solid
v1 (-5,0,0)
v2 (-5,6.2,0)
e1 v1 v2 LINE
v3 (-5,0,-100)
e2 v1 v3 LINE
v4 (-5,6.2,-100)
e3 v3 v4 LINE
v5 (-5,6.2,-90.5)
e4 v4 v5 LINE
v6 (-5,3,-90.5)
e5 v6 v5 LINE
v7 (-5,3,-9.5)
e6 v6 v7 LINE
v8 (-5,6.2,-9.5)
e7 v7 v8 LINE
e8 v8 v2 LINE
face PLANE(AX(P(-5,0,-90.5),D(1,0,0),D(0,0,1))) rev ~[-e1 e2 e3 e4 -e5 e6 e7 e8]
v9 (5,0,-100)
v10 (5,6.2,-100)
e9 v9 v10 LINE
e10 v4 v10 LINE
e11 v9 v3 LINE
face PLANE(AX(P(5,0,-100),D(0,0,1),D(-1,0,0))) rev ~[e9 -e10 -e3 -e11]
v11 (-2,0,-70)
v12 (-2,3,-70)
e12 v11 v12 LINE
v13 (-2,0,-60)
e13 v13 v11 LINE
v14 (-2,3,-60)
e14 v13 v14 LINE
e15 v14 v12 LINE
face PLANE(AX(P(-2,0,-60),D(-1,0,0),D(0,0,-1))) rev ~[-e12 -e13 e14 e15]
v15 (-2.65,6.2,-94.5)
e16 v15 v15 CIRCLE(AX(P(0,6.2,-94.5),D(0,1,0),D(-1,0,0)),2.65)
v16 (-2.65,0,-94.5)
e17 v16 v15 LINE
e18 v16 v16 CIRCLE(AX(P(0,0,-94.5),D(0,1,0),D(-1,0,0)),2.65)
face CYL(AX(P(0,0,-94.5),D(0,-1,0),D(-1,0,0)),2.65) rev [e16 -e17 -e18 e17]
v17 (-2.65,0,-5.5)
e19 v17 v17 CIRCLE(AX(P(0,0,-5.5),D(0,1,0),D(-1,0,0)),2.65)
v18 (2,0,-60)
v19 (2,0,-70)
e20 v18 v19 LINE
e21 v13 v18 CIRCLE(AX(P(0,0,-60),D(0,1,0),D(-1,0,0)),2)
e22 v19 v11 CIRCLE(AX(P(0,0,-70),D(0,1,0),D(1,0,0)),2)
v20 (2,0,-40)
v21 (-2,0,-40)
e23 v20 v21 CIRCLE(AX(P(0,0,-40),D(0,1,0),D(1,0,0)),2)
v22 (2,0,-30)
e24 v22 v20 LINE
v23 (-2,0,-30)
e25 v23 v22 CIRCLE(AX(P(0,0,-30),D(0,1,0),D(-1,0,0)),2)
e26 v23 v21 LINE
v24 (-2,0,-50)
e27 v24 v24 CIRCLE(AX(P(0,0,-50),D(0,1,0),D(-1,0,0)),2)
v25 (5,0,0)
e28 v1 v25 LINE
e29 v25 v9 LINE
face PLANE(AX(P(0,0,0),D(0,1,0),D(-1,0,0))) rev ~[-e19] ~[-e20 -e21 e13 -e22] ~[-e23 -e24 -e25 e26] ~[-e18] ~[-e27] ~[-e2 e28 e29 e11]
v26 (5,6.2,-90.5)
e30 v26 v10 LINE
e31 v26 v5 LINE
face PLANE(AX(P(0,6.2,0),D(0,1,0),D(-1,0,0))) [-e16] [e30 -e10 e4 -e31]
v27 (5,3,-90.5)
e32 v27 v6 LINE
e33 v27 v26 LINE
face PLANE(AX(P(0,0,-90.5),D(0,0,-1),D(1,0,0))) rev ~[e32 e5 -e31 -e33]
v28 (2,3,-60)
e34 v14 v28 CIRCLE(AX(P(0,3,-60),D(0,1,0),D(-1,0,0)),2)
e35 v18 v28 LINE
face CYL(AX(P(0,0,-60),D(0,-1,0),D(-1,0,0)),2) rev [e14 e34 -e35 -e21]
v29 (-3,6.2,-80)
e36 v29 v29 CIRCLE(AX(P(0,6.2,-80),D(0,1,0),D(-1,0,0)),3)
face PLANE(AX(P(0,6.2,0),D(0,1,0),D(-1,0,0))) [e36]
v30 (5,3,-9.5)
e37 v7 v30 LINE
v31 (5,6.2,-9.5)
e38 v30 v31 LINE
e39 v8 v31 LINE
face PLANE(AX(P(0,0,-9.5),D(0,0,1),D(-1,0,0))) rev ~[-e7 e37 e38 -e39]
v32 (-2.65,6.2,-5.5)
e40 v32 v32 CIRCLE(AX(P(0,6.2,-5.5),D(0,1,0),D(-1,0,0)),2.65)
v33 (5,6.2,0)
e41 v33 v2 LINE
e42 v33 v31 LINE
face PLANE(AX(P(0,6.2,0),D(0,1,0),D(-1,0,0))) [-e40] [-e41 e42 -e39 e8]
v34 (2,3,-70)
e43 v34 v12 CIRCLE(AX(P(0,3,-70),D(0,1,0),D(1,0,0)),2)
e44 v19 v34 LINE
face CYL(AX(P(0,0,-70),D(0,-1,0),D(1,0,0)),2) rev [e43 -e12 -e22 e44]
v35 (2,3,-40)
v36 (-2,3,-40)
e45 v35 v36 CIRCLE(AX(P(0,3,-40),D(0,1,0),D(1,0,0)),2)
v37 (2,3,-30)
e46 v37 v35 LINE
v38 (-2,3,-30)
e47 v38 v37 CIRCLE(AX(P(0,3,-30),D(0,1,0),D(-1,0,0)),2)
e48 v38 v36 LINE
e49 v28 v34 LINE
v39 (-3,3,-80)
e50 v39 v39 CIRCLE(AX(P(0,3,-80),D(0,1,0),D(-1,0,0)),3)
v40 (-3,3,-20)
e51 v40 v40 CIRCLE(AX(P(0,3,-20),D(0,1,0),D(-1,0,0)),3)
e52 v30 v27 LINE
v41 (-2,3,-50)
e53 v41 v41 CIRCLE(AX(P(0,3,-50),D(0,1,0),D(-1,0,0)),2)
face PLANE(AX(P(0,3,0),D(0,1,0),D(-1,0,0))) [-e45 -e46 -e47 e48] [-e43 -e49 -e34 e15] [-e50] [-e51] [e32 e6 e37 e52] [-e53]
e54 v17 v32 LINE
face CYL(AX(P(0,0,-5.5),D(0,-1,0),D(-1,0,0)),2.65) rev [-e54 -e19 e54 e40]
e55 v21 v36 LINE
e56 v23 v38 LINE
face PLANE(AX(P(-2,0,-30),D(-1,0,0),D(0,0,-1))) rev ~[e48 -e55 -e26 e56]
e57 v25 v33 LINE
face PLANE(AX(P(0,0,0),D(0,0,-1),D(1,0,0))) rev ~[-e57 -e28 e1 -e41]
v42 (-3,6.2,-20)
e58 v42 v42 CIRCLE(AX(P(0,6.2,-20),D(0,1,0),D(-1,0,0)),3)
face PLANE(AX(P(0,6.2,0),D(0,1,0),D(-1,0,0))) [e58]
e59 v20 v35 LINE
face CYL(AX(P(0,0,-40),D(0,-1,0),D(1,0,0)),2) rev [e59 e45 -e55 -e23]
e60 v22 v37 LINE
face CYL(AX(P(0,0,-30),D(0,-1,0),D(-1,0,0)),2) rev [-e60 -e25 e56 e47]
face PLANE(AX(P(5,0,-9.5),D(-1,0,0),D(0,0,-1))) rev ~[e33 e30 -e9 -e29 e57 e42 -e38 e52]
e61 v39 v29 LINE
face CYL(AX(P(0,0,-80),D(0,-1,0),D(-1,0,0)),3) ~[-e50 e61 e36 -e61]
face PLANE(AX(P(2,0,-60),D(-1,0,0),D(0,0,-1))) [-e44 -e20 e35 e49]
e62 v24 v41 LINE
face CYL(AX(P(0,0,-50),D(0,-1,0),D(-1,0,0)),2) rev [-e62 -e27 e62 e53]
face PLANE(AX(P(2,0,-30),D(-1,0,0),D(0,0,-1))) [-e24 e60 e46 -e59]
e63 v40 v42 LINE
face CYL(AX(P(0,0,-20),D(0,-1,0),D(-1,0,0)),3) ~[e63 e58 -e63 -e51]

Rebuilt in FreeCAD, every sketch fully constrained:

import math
import FreeCAD as App
import Part
import Sketcher
from FreeCAD import Vector

doc = App.newDocument("Part")
body = doc.addObject("PartDesign::Body", "Body")

# Sketch on XZ plane
sketch1 = body.newObject("Sketcher::SketchObject", "Sketch")
sketch1.AttachmentSupport = (doc.getObject("XZ_Plane"), [""])
sketch1.MapMode = "FlatFace"
sketch1.addGeometry([
    Part.LineSegment(Vector(5, -90.5, 0), Vector(-5, -90.5, 0)),  # 0
    Part.LineSegment(Vector(-5, -90.5, 0), Vector(-5, -9.5, 0)),  # 1
    Part.LineSegment(Vector(-5, -9.5, 0), Vector(5, -9.5, 0)),  # 2
    Part.LineSegment(Vector(5, -9.5, 0), Vector(5, -90.5, 0)),  # 3
    Part.Circle(Vector(0, -80, 0), Vector(0, 0, 1), 3),  # 4
    Part.ArcOfCircle(Part.Circle(Vector(0, -60, 0), Vector(0, 0, 1), 2), math.radians(0), math.radians(180)),  # 5
    Part.LineSegment(Vector(-2, -60, 0), Vector(-2, -70, 0)),  # 6
    Part.ArcOfCircle(Part.Circle(Vector(0, -70, 0), Vector(0, 0, 1), 2), math.radians(180), math.radians(360)),  # 7
    Part.LineSegment(Vector(2, -70, 0), Vector(2, -60, 0)),  # 8
    Part.Circle(Vector(0, -50, 0), Vector(0, 0, 1), 2),  # 9
    Part.ArcOfCircle(Part.Circle(Vector(0, -30, 0), Vector(0, 0, 1), 2), math.radians(0), math.radians(180)),  # 10
    Part.LineSegment(Vector(-2, -30, 0), Vector(-2, -40, 0)),  # 11
    Part.ArcOfCircle(Part.Circle(Vector(0, -40, 0), Vector(0, 0, 1), 2), math.radians(180), math.radians(360)),  # 12
    Part.LineSegment(Vector(2, -40, 0), Vector(2, -30, 0)),  # 13
    Part.Circle(Vector(0, -20, 0), Vector(0, 0, 1), 3),  # 14
], False)
sketch1.addConstraint([
    Sketcher.Constraint("Coincident", 0, 2, 1, 1),
    Sketcher.Constraint("Coincident", 1, 2, 2, 1),
    Sketcher.Constraint("Coincident", 2, 2, 3, 1),
    Sketcher.Constraint("Coincident", 3, 2, 0, 1),
    Sketcher.Constraint("Tangent", 5, 2, 6, 1),
    Sketcher.Constraint("Tangent", 6, 2, 7, 1),
    Sketcher.Constraint("Tangent", 7, 2, 8, 1),
    Sketcher.Constraint("Tangent", 8, 2, 5, 1),
    Sketcher.Constraint("Tangent", 10, 2, 11, 1),
    Sketcher.Constraint("Tangent", 11, 2, 12, 1),
    Sketcher.Constraint("Tangent", 12, 2, 13, 1),
    Sketcher.Constraint("Tangent", 13, 2, 10, 1),
    Sketcher.Constraint("Horizontal", 0),
    Sketcher.Constraint("Vertical", 1),
    Sketcher.Constraint("Horizontal", 2),
    Sketcher.Constraint("Vertical", 3),
    Sketcher.Constraint("Vertical", 6),
    Sketcher.Constraint("Vertical", 8),
    Sketcher.Constraint("Vertical", 11),
    Sketcher.Constraint("Vertical", 13),
    Sketcher.Constraint("Equal", 7, 9),
    Sketcher.Constraint("Equal", 9, 10),
    Sketcher.Constraint("Equal", 4, 14),
    Sketcher.Constraint("PointOnObject", 4, 3, -2),
    Sketcher.Constraint("PointOnObject", 5, 3, -2),
    Sketcher.Constraint("PointOnObject", 9, 3, -2),
    Sketcher.Constraint("PointOnObject", 10, 3, -2),
    Sketcher.Constraint("PointOnObject", 14, 3, -2),
    Sketcher.Constraint("Equal", 2, 6),
    Sketcher.Constraint("Equal", 8, 11),
    Sketcher.Constraint("Diameter", 4, 6.0),
    Sketcher.Constraint("Diameter", 9, 4.0),
    Sketcher.Constraint("DistanceX", 0, 2, -1, 1, 5.0),
    Sketcher.Constraint("DistanceX", -1, 1, 2, 2, 5.0),
    Sketcher.Constraint("DistanceY", 1, 1, 1, 2, 81.0),
    Sketcher.Constraint("DistanceY", 4, 3, -1, 1, 80.0),
    Sketcher.Constraint("DistanceY", 5, 3, -1, 1, 60.0),
    Sketcher.Constraint("DistanceY", 9, 3, -1, 1, 50.0),
    Sketcher.Constraint("DistanceY", 10, 3, -1, 1, 30.0),
    Sketcher.Constraint("DistanceY", 14, 3, -1, 1, 20.0),
    Sketcher.Constraint("DistanceY", 0, 2, -1, 1, 90.5),
])
pad1 = body.newObject("PartDesign::Pad", "Pad")
pad1.Profile = sketch1
pad1.Length = 3
pad1.Reversed = True

# Sketch on XZ plane
sketch2 = body.newObject("Sketcher::SketchObject", "Sketch001")
sketch2.AttachmentSupport = (doc.getObject("XZ_Plane"), [""])
sketch2.MapMode = "FlatFace"
sketch2.addGeometry([
    Part.Circle(Vector(0, -20, 0), Vector(0, 0, 1), 3),  # 0
    Part.Circle(Vector(0, -80, 0), Vector(0, 0, 1), 3),  # 1
    Part.LineSegment(Vector(5, -100, 0), Vector(-5, -100, 0)),  # 2
    Part.LineSegment(Vector(-5, -100, 0), Vector(-5, -90.5, 0)),  # 3
    Part.LineSegment(Vector(-5, -90.5, 0), Vector(5, -90.5, 0)),  # 4
    Part.LineSegment(Vector(5, -90.5, 0), Vector(5, -100, 0)),  # 5
    Part.Circle(Vector(0, -94.5, 0), Vector(0, 0, 1), 2.65),  # 6
    Part.LineSegment(Vector(5, -9.5, 0), Vector(-5, -9.5, 0)),  # 7
    Part.LineSegment(Vector(-5, -9.5, 0), Vector(-5, 0, 0)),  # 8
    Part.LineSegment(Vector(-5, 0, 0), Vector(5, 0, 0)),  # 9
    Part.LineSegment(Vector(5, 0, 0), Vector(5, -9.5, 0)),  # 10
    Part.Circle(Vector(0, -5.5, 0), Vector(0, 0, 1), 2.65),  # 11
], False)
sketch2.addConstraint([
    Sketcher.Constraint("Coincident", 2, 2, 3, 1),
    Sketcher.Constraint("Coincident", 3, 2, 4, 1),
    Sketcher.Constraint("Coincident", 4, 2, 5, 1),
    Sketcher.Constraint("Coincident", 5, 2, 2, 1),
    Sketcher.Constraint("Coincident", 7, 2, 8, 1),
    Sketcher.Constraint("Coincident", 8, 2, 9, 1),
    Sketcher.Constraint("Coincident", 9, 2, 10, 1),
    Sketcher.Constraint("Coincident", 10, 2, 7, 1),
    Sketcher.Constraint("Horizontal", 2),
    Sketcher.Constraint("Vertical", 3),
    Sketcher.Constraint("Horizontal", 4),
    Sketcher.Constraint("Vertical", 5),
    Sketcher.Constraint("Horizontal", 7),
    Sketcher.Constraint("Vertical", 8),
    Sketcher.Constraint("Horizontal", 9),
    Sketcher.Constraint("Vertical", 10),
    Sketcher.Constraint("Equal", 0, 1),
    Sketcher.Constraint("Equal", 6, 11),
    Sketcher.Constraint("Symmetric", 8, 2, 9, 2, -1, 1),
    Sketcher.Constraint("PointOnObject", 0, 3, -2),
    Sketcher.Constraint("PointOnObject", 1, 3, -2),
    Sketcher.Constraint("PointOnObject", 6, 3, -2),
    Sketcher.Constraint("PointOnObject", 11, 3, -2),
    Sketcher.Constraint("Vertical", 3, 2, 7, 2),
    Sketcher.Constraint("Vertical", 5, 2, 9, 2),
    Sketcher.Constraint("Equal", 5, 8),
    Sketcher.Constraint("Diameter", 0, 6.0),
    Sketcher.Constraint("Diameter", 6, 5.3),
    Sketcher.Constraint("DistanceX", 2, 2, -1, 1, 5.0),
    Sketcher.Constraint("DistanceY", 2, 2, -1, 1, 100.0),
    Sketcher.Constraint("DistanceY", 6, 3, 3, 2, 4.0),
    Sketcher.Constraint("DistanceY", 7, 2, 11, 3, 4.0),
    Sketcher.Constraint("DistanceY", 3, 1, 3, 2, 9.5),
    Sketcher.Constraint("DistanceY", 0, 3, -1, 1, 20.0),
    Sketcher.Constraint("DistanceY", 1, 3, -1, 1, 80.0),
])
pad2 = body.newObject("PartDesign::Pad", "Pad001")
pad2.Profile = sketch2
pad2.Length = 6.2
pad2.Reversed = True

doc.recompute()
